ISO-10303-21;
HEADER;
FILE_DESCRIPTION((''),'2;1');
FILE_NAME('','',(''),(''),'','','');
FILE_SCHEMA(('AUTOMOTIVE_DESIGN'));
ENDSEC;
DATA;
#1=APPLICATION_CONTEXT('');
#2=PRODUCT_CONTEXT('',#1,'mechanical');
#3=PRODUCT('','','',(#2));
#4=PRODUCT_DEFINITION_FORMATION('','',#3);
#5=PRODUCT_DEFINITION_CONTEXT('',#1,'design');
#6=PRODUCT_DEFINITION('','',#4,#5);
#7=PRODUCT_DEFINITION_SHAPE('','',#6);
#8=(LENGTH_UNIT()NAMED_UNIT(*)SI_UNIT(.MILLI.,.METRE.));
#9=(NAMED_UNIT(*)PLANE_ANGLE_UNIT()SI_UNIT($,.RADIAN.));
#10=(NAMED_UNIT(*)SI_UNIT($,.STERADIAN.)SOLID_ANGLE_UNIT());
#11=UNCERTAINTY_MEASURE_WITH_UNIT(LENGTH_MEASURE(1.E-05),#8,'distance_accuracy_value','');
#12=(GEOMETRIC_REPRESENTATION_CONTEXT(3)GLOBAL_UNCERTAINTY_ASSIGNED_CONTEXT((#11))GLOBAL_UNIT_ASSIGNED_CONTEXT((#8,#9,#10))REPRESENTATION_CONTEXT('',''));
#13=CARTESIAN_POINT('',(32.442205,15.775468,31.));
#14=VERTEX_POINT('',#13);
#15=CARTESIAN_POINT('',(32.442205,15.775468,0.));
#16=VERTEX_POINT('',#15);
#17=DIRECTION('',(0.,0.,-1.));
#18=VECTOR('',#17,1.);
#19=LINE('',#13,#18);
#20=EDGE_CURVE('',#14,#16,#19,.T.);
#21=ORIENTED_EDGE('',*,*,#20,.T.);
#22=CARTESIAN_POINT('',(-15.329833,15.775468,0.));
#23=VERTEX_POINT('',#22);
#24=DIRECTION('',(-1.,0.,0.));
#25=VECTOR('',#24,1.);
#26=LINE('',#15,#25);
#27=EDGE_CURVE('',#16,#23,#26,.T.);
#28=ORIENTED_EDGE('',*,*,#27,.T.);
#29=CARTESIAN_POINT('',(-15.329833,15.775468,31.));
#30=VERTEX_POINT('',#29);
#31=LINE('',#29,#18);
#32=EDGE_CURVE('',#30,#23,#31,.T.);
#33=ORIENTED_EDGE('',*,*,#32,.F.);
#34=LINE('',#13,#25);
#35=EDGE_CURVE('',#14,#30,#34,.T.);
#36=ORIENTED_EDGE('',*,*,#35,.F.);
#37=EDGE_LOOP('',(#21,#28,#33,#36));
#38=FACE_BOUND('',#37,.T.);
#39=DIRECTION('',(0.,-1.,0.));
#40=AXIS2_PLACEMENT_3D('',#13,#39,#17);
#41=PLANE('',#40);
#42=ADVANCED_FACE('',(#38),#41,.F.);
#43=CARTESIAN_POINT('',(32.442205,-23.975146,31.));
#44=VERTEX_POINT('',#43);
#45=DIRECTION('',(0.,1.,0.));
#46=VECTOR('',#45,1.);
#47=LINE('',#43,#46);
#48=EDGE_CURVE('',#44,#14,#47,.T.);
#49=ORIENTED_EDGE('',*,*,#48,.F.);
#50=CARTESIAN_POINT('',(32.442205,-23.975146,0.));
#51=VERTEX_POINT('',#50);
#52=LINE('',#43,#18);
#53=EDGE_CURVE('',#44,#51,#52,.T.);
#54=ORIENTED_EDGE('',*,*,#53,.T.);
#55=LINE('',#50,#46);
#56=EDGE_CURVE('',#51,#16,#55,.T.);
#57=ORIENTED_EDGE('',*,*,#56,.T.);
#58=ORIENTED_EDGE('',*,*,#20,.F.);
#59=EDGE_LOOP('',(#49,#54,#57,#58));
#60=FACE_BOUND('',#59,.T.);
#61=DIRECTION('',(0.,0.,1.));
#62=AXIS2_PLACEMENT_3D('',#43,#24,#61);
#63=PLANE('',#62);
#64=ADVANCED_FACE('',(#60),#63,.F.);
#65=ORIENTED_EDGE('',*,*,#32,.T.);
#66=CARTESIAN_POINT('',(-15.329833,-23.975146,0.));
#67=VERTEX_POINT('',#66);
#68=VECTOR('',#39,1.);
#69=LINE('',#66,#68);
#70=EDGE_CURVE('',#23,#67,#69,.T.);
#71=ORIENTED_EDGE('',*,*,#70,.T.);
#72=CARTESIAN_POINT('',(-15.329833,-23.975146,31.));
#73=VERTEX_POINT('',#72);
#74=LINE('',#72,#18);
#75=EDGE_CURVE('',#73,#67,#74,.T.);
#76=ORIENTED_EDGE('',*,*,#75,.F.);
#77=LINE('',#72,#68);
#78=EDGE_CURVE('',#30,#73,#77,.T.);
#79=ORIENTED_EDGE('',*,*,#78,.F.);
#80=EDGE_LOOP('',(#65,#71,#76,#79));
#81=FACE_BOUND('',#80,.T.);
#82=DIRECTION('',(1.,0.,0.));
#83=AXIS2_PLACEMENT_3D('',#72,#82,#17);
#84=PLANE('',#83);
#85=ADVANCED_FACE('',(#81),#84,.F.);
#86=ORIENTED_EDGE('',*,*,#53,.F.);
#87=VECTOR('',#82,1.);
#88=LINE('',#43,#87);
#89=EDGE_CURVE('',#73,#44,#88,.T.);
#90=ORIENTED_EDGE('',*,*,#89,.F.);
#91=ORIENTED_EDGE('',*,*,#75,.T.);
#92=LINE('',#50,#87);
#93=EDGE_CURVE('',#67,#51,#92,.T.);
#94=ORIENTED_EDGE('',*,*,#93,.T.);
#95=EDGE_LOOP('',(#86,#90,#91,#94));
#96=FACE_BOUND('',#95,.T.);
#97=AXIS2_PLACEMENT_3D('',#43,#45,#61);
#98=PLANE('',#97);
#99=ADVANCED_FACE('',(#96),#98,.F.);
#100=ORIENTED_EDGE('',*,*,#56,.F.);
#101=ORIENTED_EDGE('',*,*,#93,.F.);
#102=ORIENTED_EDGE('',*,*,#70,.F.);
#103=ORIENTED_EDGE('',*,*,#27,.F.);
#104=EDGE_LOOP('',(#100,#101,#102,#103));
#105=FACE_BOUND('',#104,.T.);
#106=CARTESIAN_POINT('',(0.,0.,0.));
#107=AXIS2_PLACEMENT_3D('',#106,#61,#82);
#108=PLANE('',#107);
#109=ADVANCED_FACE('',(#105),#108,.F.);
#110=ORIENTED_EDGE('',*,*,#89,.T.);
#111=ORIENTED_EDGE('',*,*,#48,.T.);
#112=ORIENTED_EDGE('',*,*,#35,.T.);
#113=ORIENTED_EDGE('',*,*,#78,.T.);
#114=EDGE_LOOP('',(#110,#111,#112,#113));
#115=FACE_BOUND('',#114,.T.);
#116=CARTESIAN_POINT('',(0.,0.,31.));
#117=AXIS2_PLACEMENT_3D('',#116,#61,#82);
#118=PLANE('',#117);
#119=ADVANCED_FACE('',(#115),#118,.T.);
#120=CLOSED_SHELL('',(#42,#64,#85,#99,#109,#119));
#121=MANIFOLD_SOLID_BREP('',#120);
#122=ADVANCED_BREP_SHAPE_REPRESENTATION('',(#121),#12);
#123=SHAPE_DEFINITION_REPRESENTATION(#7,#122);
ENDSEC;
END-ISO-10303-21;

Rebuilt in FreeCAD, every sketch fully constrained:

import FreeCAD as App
import Part
import Sketcher

doc = App.newDocument("Part")
body = doc.addObject("PartDesign::Body", "Body")

# Sketch on XY plane
sketch1 = doc.addObject("Sketcher::SketchObject", "Sketch")
body.addObject(sketch1)
sketch1.AttachmentSupport = (doc.XY_Plane, [""])
sketch1.MapMode = "FlatFace"
sketch1.addGeometry([
    Part.LineSegment(App.Vector(-15, 16, 0), App.Vector(-15, -24, 0)),
    Part.LineSegment(App.Vector(-15, -24, 0), App.Vector(32, -24, 0)),
    Part.LineSegment(App.Vector(32, -24, 0), App.Vector(32, 16, 0)),
    Part.LineSegment(App.Vector(32, 16, 0), App.Vector(-15, 16, 0)),
], False)
sketch1.addConstraint([
    Sketcher.Constraint("Coincident", 0, 2, 1, 1),
    Sketcher.Constraint("Coincident", 1, 2, 2, 1),
    Sketcher.Constraint("Coincident", 2, 2, 3, 1),
    Sketcher.Constraint("Coincident", 3, 2, 0, 1),
    Sketcher.Constraint("Vertical", 0),
    Sketcher.Constraint("Horizontal", 1),
    Sketcher.Constraint("Vertical", 2),
    Sketcher.Constraint("Horizontal", 3),
    Sketcher.Constraint("DistanceX", 1, 1, 1, 2, 47.772038),
    Sketcher.Constraint("DistanceY", 0, 2, 0, 1, 39.750614),
    Sketcher.Constraint("DistanceX", 0, 2, -1, 1, 15.329833),
    Sketcher.Constraint("DistanceY", 0, 2, -1, 1, 23.975146),
])
pad1 = doc.addObject("PartDesign::Pad", "Pad")
body.addObject(pad1)
pad1.Profile = sketch1
pad1.Length = 31

doc.recompute()
